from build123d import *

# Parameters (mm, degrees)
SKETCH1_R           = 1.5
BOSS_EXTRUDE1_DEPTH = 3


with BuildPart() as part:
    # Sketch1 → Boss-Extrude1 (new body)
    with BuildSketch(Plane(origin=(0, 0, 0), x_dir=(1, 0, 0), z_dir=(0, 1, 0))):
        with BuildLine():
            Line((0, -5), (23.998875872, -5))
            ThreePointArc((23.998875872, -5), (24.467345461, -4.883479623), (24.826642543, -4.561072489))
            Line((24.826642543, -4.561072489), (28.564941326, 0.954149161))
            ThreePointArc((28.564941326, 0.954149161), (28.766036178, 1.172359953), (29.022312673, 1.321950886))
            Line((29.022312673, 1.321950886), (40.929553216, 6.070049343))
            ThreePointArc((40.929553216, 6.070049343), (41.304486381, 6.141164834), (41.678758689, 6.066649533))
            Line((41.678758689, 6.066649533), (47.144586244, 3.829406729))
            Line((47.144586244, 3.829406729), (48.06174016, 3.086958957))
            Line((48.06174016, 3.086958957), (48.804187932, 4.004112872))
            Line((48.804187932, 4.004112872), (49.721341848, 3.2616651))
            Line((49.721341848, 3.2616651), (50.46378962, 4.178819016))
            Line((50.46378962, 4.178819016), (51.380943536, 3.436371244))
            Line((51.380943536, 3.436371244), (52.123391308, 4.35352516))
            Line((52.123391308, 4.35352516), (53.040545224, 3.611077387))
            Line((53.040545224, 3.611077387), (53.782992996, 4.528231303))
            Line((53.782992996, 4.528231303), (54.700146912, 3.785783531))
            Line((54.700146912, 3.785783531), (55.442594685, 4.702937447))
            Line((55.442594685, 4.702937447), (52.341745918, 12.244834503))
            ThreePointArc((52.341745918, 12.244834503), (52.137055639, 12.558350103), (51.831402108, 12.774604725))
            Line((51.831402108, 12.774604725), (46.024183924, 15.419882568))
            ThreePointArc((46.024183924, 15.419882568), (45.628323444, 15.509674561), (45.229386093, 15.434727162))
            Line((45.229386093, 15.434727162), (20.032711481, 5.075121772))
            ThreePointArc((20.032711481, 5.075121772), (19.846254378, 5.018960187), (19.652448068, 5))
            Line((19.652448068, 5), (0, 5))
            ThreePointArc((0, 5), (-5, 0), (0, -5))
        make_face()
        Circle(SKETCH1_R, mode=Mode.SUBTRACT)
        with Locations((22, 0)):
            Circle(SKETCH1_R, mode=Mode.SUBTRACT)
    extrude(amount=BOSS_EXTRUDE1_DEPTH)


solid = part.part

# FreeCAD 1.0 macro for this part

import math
import FreeCAD as App
import Part
import Sketcher
from FreeCAD import Vector
Q = App.Units.Quantity

doc = App.newDocument("Part")
body = doc.addObject("PartDesign::Body", "Body")

# Sketch on XZ plane
sketch1 = body.newObject("Sketcher::SketchObject", "Sketch")
sketch1.AttachmentSupport = (doc.getObject("XZ_Plane"), [""])
sketch1.MapMode = "FlatFace"
sketch1.addGeometry(Part.LineSegment(Vector(0, 5, 0), Vector(24, 5, 0)), False)
sketch1.addGeometry(Part.ArcOfCircle(Part.Circle(Vector(24, 4, 0), Vector(0, 0, 1), 1), math.radians(34), math.radians(90)), False)
sketch1.addGeometry(Part.LineSegment(Vector(24.83, 4.56, 0), Vector(28.56, -0.95, 0)), False)
sketch1.addGeometry(Part.ArcOfCircle(Part.Circle(Vector(29.39, -0.39, 0), Vector(0, 0, 1), 1), math.radians(-146), math.radians(-112)), False)
sketch1.addGeometry(Part.LineSegment(Vector(29.02, -1.32, 0), Vector(40.93, -6.07, 0)), False)
sketch1.addGeometry(Part.ArcOfCircle(Part.Circle(Vector(41.3, -5.14, 0), Vector(0, 0, 1), 1), math.radians(-112), math.radians(-68)), False)
sketch1.addGeometry(Part.LineSegment(Vector(41.68, -6.07, 0), Vector(47.14, -3.83, 0)), False)
sketch1.addGeometry(Part.LineSegment(Vector(47.14, -3.83, 0), Vector(48.06, -3.09, 0)), False)
sketch1.addGeometry(Part.LineSegment(Vector(48.06, -3.09, 0), Vector(48.8, -4, 0)), False)
sketch1.addGeometry(Part.LineSegment(Vector(48.8, -4, 0), Vector(49.72, -3.26, 0)), False)
sketch1.addGeometry(Part.LineSegment(Vector(49.72, -3.26, 0), Vector(50.46, -4.18, 0)), False)
sketch1.addGeometry(Part.LineSegment(Vector(50.46, -4.18, 0), Vector(51.38, -3.44, 0)), False)
sketch1.addGeometry(Part.LineSegment(Vector(51.38, -3.44, 0), Vector(52.12, -4.35, 0)), False)
sketch1.addGeometry(Part.LineSegment(Vector(52.12, -4.35, 0), Vector(53.04, -3.61, 0)), False)
sketch1.addGeometry(Part.LineSegment(Vector(53.04, -3.61, 0), Vector(53.78, -4.53, 0)), False)
sketch1.addGeometry(Part.LineSegment(Vector(53.78, -4.53, 0), Vector(54.7, -3.79, 0)), False)
sketch1.addGeometry(Part.LineSegment(Vector(54.7, -3.79, 0), Vector(55.44, -4.7, 0)), False)
sketch1.addGeometry(Part.LineSegment(Vector(55.44, -4.7, 0), Vector(52.34, -12.24, 0)), False)
sketch1.addGeometry(Part.ArcOfCircle(Part.Circle(Vector(51.42, -11.86, 0), Vector(0, 0, 1), 1), math.radians(-66), math.radians(-22)), False)
sketch1.addGeometry(Part.LineSegment(Vector(51.83, -12.77, 0), Vector(46.02, -15.42, 0)), False)
sketch1.addGeometry(Part.ArcOfCircle(Part.Circle(Vector(45.61, -14.51, 0), Vector(0, 0, 1), 1), math.radians(-112), math.radians(-66)), False)
sketch1.addGeometry(Part.LineSegment(Vector(45.23, -15.43, 0), Vector(20.03, -5.08, 0)), False)
sketch1.addGeometry(Part.ArcOfCircle(Part.Circle(Vector(19.65, -6, 0), Vector(0, 0, 1), 1), math.radians(68), math.radians(90)), False)
sketch1.addGeometry(Part.LineSegment(Vector(19.65, -5, 0), Vector(0, -5, 0)), False)
sketch1.addGeometry(Part.ArcOfCircle(Part.Circle(Vector(0, 0, 0), Vector(0, 0, 1), 5), math.radians(90), math.radians(270)), False)
sketch1.addGeometry(Part.Circle(Vector(0, 0, 0), Vector(0, 0, 1), 1.5), False)
sketch1.addGeometry(Part.Circle(Vector(22, 0, 0), Vector(0, 0, 1), 1.5), False)
sketch1.addConstraint(Sketcher.Constraint("Tangent", 0, 2, 1, 2))
sketch1.addConstraint(Sketcher.Constraint("Tangent", 1, 1, 2, 1))
sketch1.addConstraint(Sketcher.Constraint("Tangent", 2, 2, 3, 1))
sketch1.addConstraint(Sketcher.Constraint("Tangent", 3, 2, 4, 1))
sketch1.addConstraint(Sketcher.Constraint("Tangent", 4, 2, 5, 1))
sketch1.addConstraint(Sketcher.Constraint("Tangent", 5, 2, 6, 1))
sketch1.addConstraint(Sketcher.Constraint("Coincident", 6, 2, 7, 1))
sketch1.addConstraint(Sketcher.Constraint("Coincident", 7, 2, 8, 1))
sketch1.addConstraint(Sketcher.Constraint("Coincident", 8, 2, 9, 1))
sketch1.addConstraint(Sketcher.Constraint("Coincident", 9, 2, 10, 1))
sketch1.addConstraint(Sketcher.Constraint("Coincident", 10, 2, 11, 1))
sketch1.addConstraint(Sketcher.Constraint("Coincident", 11, 2, 12, 1))
sketch1.addConstraint(Sketcher.Constraint("Coincident", 12, 2, 13, 1))
sketch1.addConstraint(Sketcher.Constraint("Coincident", 13, 2, 14, 1))
sketch1.addConstraint(Sketcher.Constraint("Coincident", 14, 2, 15, 1))
sketch1.addConstraint(Sketcher.Constraint("Coincident", 15, 2, 16, 1))
sketch1.addConstraint(Sketcher.Constraint("Coincident", 16, 2, 17, 1))
sketch1.addConstraint(Sketcher.Constraint("Tangent", 17, 2, 18, 2))
sketch1.addConstraint(Sketcher.Constraint("Tangent", 18, 1, 19, 1))
sketch1.addConstraint(Sketcher.Constraint("Tangent", 19, 2, 20, 2))
sketch1.addConstraint(Sketcher.Constraint("Tangent", 20, 1, 21, 1))
sketch1.addConstraint(Sketcher.Constraint("Tangent", 21, 2, 22, 1))
sketch1.addConstraint(Sketcher.Constraint("Tangent", 22, 2, 23, 1))
sketch1.addConstraint(Sketcher.Constraint("Tangent", 23, 2, 24, 2))
sketch1.addConstraint(Sketcher.Constraint("Tangent", 24, 1, 0, 1))
sketch1.addConstraint(Sketcher.Constraint("Horizontal", 0))
sketch1.addConstraint(Sketcher.Constraint("Horizontal", 23))
sketch1.addConstraint(Sketcher.Constraint("Coincident", 24, 3, -1, 1))
sketch1.addConstraint(Sketcher.Constraint("Coincident", 25, 3, -1, 1))
sketch1.addConstraint(Sketcher.Constraint("Equal", 1, 3))
sketch1.addConstraint(Sketcher.Constraint("Equal", 3, 5))
sketch1.addConstraint(Sketcher.Constraint("Equal", 5, 18))
sketch1.addConstraint(Sketcher.Constraint("Equal", 18, 20))
sketch1.addConstraint(Sketcher.Constraint("Equal", 20, 22))
sketch1.addConstraint(Sketcher.Constraint("Equal", 25, 26))
sketch1.addConstraint(Sketcher.Constraint("PointOnObject", 26, 3, -1))
sketch1.addConstraint(Sketcher.Constraint("Perpendicular", 7, 8))
sketch1.addConstraint(Sketcher.Constraint("Perpendicular", 8, 9))
sketch1.addConstraint(Sketcher.Constraint("Perpendicular", 9, 10))
sketch1.addConstraint(Sketcher.Constraint("Perpendicular", 10, 11))
sketch1.addConstraint(Sketcher.Constraint("Perpendicular", 11, 12))
sketch1.addConstraint(Sketcher.Constraint("Perpendicular", 12, 13))
sketch1.addConstraint(Sketcher.Constraint("Perpendicular", 13, 14))
sketch1.addConstraint(Sketcher.Constraint("Perpendicular", 14, 15))
sketch1.addConstraint(Sketcher.Constraint("Perpendicular", 15, 16))
sketch1.addConstraint(Sketcher.Constraint("Perpendicular", 17, 21))
sketch1.addConstraint(Sketcher.Constraint("Equal", 7, 8))
sketch1.addConstraint(Sketcher.Constraint("Equal", 8, 9))
sketch1.addConstraint(Sketcher.Constraint("Equal", 9, 10))
sketch1.addConstraint(Sketcher.Constraint("Equal", 10, 11))
sketch1.addConstraint(Sketcher.Constraint("Equal", 11, 12))
sketch1.addConstraint(Sketcher.Constraint("Equal", 12, 13))
sketch1.addConstraint(Sketcher.Constraint("Equal", 13, 14))
sketch1.addConstraint(Sketcher.Constraint("Equal", 14, 15))
sketch1.addConstraint(Sketcher.Constraint("Equal", 15, 16))
sketch1.addConstraint(Sketcher.Constraint("Diameter", 25, 3.0))
sketch1.addConstraint(Sketcher.Constraint("Radius", 1, 1.0))
sketch1.addConstraint(Sketcher.Constraint("Radius", 24, 5.0))
sketch1.addConstraint(Sketcher.Constraint("DistanceX", -1, 1, 26, 3, 22.0))
sketch1.addConstraint(Sketcher.Constraint("Angle", 2, Q("-55.87 deg")))
sketch1.addConstraint(Sketcher.Constraint("Angle", 4, Q("-21.74 deg")))
sketch1.addConstraint(Sketcher.Constraint("Angle", 6, Q("22.26 deg")))
sketch1.addConstraint(Sketcher.Constraint("Angle", 17, Q("-112.35 deg")))
sketch1.addConstraint(Sketcher.Constraint("Angle", 19, Q("-155.51 deg")))
sketch1.addConstraint(Sketcher.Constraint("Distance", 7, 1.18))
sketch1.addConstraint(Sketcher.Constraint("DistanceX", 23, 2, 23, 1, 19.652448))
sketch1.addConstraint(Sketcher.Constraint("DistanceY", 5, 3, 3, 3, 4.748098))
sketch1.addConstraint(Sketcher.Constraint("DistanceX", 5, 3, 20, 3, 4.309701))
sketch1.addConstraint(Sketcher.Constraint("DistanceX", 22, 3, 5, 3, 21.6475))
sketch1.addConstraint(Sketcher.Constraint("DistanceX", 1, 1, 2, 2, 3.738299))
sketch1.addConstraint(Sketcher.Constraint("DistanceX", 6, 2, 8, 2, 1.659602))
sketch1.addConstraint(Sketcher.Constraint("DistanceY", 18, 3, -1, 1, 11.864571))
pad1 = body.newObject("PartDesign::Pad", "Pad")
pad1.Profile = sketch1
pad1.Length = 3
pad1.Reversed = True

doc.recompute()
